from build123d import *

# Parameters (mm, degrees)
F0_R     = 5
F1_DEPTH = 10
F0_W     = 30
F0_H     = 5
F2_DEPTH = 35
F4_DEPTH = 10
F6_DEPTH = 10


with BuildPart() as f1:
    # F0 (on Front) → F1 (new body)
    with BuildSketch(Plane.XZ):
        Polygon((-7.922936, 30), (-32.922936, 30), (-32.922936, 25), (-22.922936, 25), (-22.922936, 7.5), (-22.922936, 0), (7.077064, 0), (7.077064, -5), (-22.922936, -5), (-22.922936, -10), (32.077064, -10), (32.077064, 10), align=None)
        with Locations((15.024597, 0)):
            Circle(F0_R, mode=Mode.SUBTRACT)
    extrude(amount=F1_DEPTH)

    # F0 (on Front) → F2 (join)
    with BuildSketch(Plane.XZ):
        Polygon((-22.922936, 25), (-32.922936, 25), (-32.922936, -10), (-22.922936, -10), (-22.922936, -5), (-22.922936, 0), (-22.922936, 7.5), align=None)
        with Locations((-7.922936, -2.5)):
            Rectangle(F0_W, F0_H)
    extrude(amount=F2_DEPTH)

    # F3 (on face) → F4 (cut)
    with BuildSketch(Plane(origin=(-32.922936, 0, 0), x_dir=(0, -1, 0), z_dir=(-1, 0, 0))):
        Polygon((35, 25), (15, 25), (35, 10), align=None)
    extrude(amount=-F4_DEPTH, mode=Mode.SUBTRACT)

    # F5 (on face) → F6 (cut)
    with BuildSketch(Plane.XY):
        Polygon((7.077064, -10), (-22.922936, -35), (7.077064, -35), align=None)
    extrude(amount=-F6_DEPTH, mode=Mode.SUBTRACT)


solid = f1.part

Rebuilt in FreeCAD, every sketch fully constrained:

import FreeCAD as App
import Part
import Sketcher

V = App.Vector
Q = App.Units.Quantity


def add_polygon(sketch, points):
    """Adds a closed chain of lines whose ends are joined by coincident constraints."""
    first, n = sketch.GeometryCount, len(points)
    for a, b in zip(points, points[1:] + points[:1]):
        sketch.addGeometry(Part.LineSegment(App.Vector(*a, 0), App.Vector(*b, 0)), False)
    for i in range(n):
        sketch.addConstraint(Sketcher.Constraint("Coincident", first + i, 2, first + (i + 1) % n, 1))

doc = App.newDocument("Part")
params = doc.addObject("Spreadsheet::Sheet", "Params")
for row, (alias, value) in enumerate([
    ("sketch1_diameter", "10 mm"),
    ("sketch1_width", "25 mm"),
    ("sketch1_width2", "10 mm"),
    ("sketch1_width3", "30 mm"),
    ("sketch1_width4", "55 mm"),
    ("pad1_length", "10 mm"),
    ("sketch2_width", "10 mm"),
    ("sketch2_width2", "30 mm"),
    ("sketch2_height", "35 mm"),
    ("sketch2_height2", "5 mm"),
    ("pad2_length", "35 mm"),
    ("sketch3_width", "20 mm"),
    ("sketch3_height", "15 mm"),
    ("pocket1_length", "10 mm"),
    ("sketch4_width", "30 mm"),
    ("sketch4_height", "25 mm"),
    ("pocket2_length", "10 mm"),
], start=1):
    params.set(f"A{row}", alias)
    params.set(f"B{row}", "=" + value)
    params.setAlias(f"B{row}", alias)

body = doc.addObject("PartDesign::Body", "Body")

# Sketch on XZ plane
sketch1 = doc.addObject("Sketcher::SketchObject", "Sketch")
body.addObject(sketch1)
sketch1.AttachmentSupport = (doc.XZ_Plane, [""])
sketch1.MapMode = "FlatFace"
add_polygon(sketch1, [(-8, 30), (-33, 30), (-33, 25), (-23, 25), (-23, 0), (7, 0), (7, -5), (-23, -5), (-23, -10), (32, -10), (32, 10)])  # lines 0-10
sketch1.addGeometry(Part.Circle(V(15, 0, 0), V(0, 0, 1), 5), False)  # 11
sketch1.addConstraint(Sketcher.Constraint("Horizontal", 0))
sketch1.addConstraint(Sketcher.Constraint("Vertical", 1))
sketch1.addConstraint(Sketcher.Constraint("Horizontal", 2))
sketch1.addConstraint(Sketcher.Constraint("Vertical", 3))
sketch1.addConstraint(Sketcher.Constraint("Horizontal", 4))
sketch1.addConstraint(Sketcher.Constraint("Vertical", 5))
sketch1.addConstraint(Sketcher.Constraint("Horizontal", 6))
sketch1.addConstraint(Sketcher.Constraint("Vertical", 7))
sketch1.addConstraint(Sketcher.Constraint("Horizontal", 8))
sketch1.addConstraint(Sketcher.Constraint("Vertical", 9))
sketch1.addConstraint(Sketcher.Constraint("PointOnObject", 11, 3, -1))
sketch1.addConstraint(Sketcher.Constraint("PointOnObject", 3, 2, -1))
sketch1.addConstraint(Sketcher.Constraint("Vertical", 3, 2, 6, 2))
sketch1.addConstraint(Sketcher.Constraint("Equal", 0, 3))
sketch1.addConstraint(Sketcher.Constraint("Equal", 1, 5))
sketch1.addConstraint(Sketcher.Constraint("Equal", 5, 7))
sketch1.addConstraint(Sketcher.Constraint("Diameter", 11, Q("10 mm")))
sketch1.addConstraint(Sketcher.Constraint("DistanceX", 0, 2, 0, 1, Q("25 mm")))
sketch1.addConstraint(Sketcher.Constraint("DistanceX", 2, 1, 2, 2, Q("10 mm")))
sketch1.addConstraint(Sketcher.Constraint("DistanceX", 4, 1, 4, 2, Q("30 mm")))
sketch1.addConstraint(Sketcher.Constraint("DistanceX", 8, 1, 8, 2, Q("55 mm")))
sketch1.addConstraint(Sketcher.Constraint("DistanceY", 1, 2, 1, 1, Q("5 mm")))
sketch1.addConstraint(Sketcher.Constraint("DistanceY", 9, 1, 9, 2, Q("20 mm")))
sketch1.addConstraint(Sketcher.Constraint("DistanceX", -1, 1, 11, 3, Q("15.024597 mm")))
sketch1.addConstraint(Sketcher.Constraint("DistanceX", 0, 2, -1, 1, Q("32.922936 mm")))
sketch1.setExpression("Constraints[27]", "Params.sketch1_diameter")
sketch1.setExpression("Constraints[28]", "Params.sketch1_width")
sketch1.setExpression("Constraints[29]", "Params.sketch1_width2")
sketch1.setExpression("Constraints[30]", "Params.sketch1_width3")
sketch1.setExpression("Constraints[31]", "Params.sketch1_width4")
pad1 = doc.addObject("PartDesign::Pad", "Pad")
body.addObject(pad1)
pad1.Profile = sketch1
pad1.setExpression("Length", "Params.pad1_length")

# Sketch on XZ plane
sketch2 = doc.addObject("Sketcher::SketchObject", "Sketch001")
body.addObject(sketch2)
sketch2.AttachmentSupport = (doc.XZ_Plane, [""])
sketch2.MapMode = "FlatFace"
add_polygon(sketch2, [(-23, 25), (-33, 25), (-33, -10), (-23, -10), (-23, -5), (7, -5), (7, 0), (-23, 0)])  # lines 0-7
sketch2.addConstraint(Sketcher.Constraint("Horizontal", 0))
sketch2.addConstraint(Sketcher.Constraint("Vertical", 1))
sketch2.addConstraint(Sketcher.Constraint("Horizontal", 2))
sketch2.addConstraint(Sketcher.Constraint("Vertical", 3))
sketch2.addConstraint(Sketcher.Constraint("Horizontal", 4))
sketch2.addConstraint(Sketcher.Constraint("Vertical", 5))
sketch2.addConstraint(Sketcher.Constraint("Horizontal", 6))
sketch2.addConstraint(Sketcher.Constraint("Vertical", 7))
sketch2.addConstraint(Sketcher.Constraint("PointOnObject", 5, 2, -1))
sketch2.addConstraint(Sketcher.Constraint("Vertical", 3, 2, 6, 2))
sketch2.addConstraint(Sketcher.Constraint("Equal", 3, 5))
sketch2.addConstraint(Sketcher.Constraint("DistanceX", 0, 2, 0, 1, Q("10 mm")))
sketch2.addConstraint(Sketcher.Constraint("DistanceX", 4, 1, 4, 2, Q("30 mm")))
sketch2.addConstraint(Sketcher.Constraint("DistanceY", 1, 2, 1, 1, Q("35 mm")))
sketch2.addConstraint(Sketcher.Constraint("DistanceY", 3, 1, 3, 2, Q("5 mm")))
sketch2.addConstraint(Sketcher.Constraint("DistanceX", 0, 2, -1, 1, Q("32.922936 mm")))
sketch2.setExpression("Constraints[19]", "Params.sketch2_width")
sketch2.setExpression("Constraints[20]", "Params.sketch2_width2")
sketch2.setExpression("Constraints[21]", "Params.sketch2_height")
sketch2.setExpression("Constraints[22]", "Params.sketch2_height2")
pad2 = doc.addObject("PartDesign::Pad", "Pad001")
body.addObject(pad2)
pad2.Profile = sketch2
pad2.setExpression("Length", "Params.pad2_length")

# Sketch on YZ plane
sketch3 = doc.addObject("Sketcher::SketchObject", "Sketch002")
body.addObject(sketch3)
sketch3.AttachmentSupport = (doc.YZ_Plane, [""])
sketch3.MapMode = "FlatFace"
sketch3.AttachmentOffset = App.Placement(V(0, 0, -32.922936), App.Rotation())
add_polygon(sketch3, [(-35, 25), (-15, 25), (-35, 10)])  # lines 0-2
sketch3.addConstraint(Sketcher.Constraint("Horizontal", 0))
sketch3.addConstraint(Sketcher.Constraint("Vertical", 2))
sketch3.addConstraint(Sketcher.Constraint("DistanceX", 0, 1, 0, 2, Q("20 mm")))
sketch3.addConstraint(Sketcher.Constraint("DistanceY", 2, 1, 2, 2, Q("15 mm")))
sketch3.addConstraint(Sketcher.Constraint("DistanceX", 0, 2, -1, 1, Q("15 mm")))
sketch3.addConstraint(Sketcher.Constraint("DistanceY", -1, 1, 0, 2, Q("25 mm")))
sketch3.setExpression("Constraints[5]", "Params.sketch3_width")
sketch3.setExpression("Constraints[6]", "Params.sketch3_height")
pocket1 = doc.addObject("PartDesign::Pocket", "Pocket")
body.addObject(pocket1)
pocket1.Profile = sketch3
pocket1.setExpression("Length", "Params.pocket1_length")
pocket1.Reversed = True

# Sketch on XY plane
sketch4 = doc.addObject("Sketcher::SketchObject", "Sketch003")
body.addObject(sketch4)
sketch4.AttachmentSupport = (doc.XY_Plane, [""])
sketch4.MapMode = "FlatFace"
add_polygon(sketch4, [(7, -10), (-23, -35), (7, -35)])  # lines 0-2
sketch4.addConstraint(Sketcher.Constraint("Horizontal", 1))
sketch4.addConstraint(Sketcher.Constraint("Vertical", 2))
sketch4.addConstraint(Sketcher.Constraint("DistanceX", 1, 1, 1, 2, Q("30 mm")))
sketch4.addConstraint(Sketcher.Constraint("DistanceY", 2, 1, 2, 2, Q("25 mm")))
sketch4.addConstraint(Sketcher.Constraint("DistanceY", 0, 2, -1, 1, Q("35 mm")))
sketch4.addConstraint(Sketcher.Constraint("DistanceX", 0, 2, -1, 1, Q("22.922936 mm")))
sketch4.setExpression("Constraints[5]", "Params.sketch4_width")
sketch4.setExpression("Constraints[6]", "Params.sketch4_height")
pocket2 = doc.addObject("PartDesign::Pocket", "Pocket001")
body.addObject(pocket2)
pocket2.Profile = sketch4
pocket2.setExpression("Length", "Params.pocket2_length")

doc.recompute()
